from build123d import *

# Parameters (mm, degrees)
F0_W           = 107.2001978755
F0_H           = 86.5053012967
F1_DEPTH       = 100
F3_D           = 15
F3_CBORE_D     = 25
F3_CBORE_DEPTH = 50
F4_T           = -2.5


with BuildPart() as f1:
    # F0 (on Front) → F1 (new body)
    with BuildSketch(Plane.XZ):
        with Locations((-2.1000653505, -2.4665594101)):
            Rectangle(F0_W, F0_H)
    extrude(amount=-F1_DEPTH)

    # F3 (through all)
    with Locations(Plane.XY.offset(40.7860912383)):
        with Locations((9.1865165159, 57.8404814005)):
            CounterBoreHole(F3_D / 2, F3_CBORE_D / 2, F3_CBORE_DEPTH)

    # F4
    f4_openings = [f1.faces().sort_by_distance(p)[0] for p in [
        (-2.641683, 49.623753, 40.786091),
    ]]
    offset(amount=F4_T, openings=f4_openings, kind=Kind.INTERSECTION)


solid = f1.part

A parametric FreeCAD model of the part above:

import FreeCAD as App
import Part
import Sketcher

V = App.Vector


def faces_at(feature, points):
    """Names of the faces that lie closest to the given points."""
    faces = feature.Shape.Faces
    near = lambda p: min(range(len(faces)), key=lambda i: faces[i].distToShape(Part.Vertex(*p))[0])
    return sorted({f"Face{near(p) + 1}" for p in points})


def add_polygon(sketch, points):
    """Adds a closed chain of lines whose ends are joined by coincident constraints."""
    first, n = sketch.GeometryCount, len(points)
    for a, b in zip(points, points[1:] + points[:1]):
        sketch.addGeometry(Part.LineSegment(App.Vector(*a, 0), App.Vector(*b, 0)), False)
    for i in range(n):
        sketch.addConstraint(Sketcher.Constraint("Coincident", first + i, 2, first + (i + 1) % n, 1))

doc = App.newDocument("Part")
body = doc.addObject("PartDesign::Body", "Body")

# Sketch on XZ plane
sketch1 = body.newObject("Sketcher::SketchObject", "Sketch")
sketch1.AttachmentSupport = (doc.getObject("XZ_Plane"), [""])
sketch1.MapMode = "FlatFace"
add_polygon(sketch1, [(-56, 41), (-56, -46), (52, -46), (52, 41)])  # lines 0-3
sketch1.addConstraint([
    Sketcher.Constraint("Vertical", 0),
    Sketcher.Constraint("Horizontal", 1),
    Sketcher.Constraint("Vertical", 2),
    Sketcher.Constraint("Horizontal", 3),
    Sketcher.Constraint("DistanceY", 0, 2, 0, 1, 86.505301),
    Sketcher.Constraint("DistanceX", 1, 1, 1, 2, 107.200198),
    Sketcher.Constraint("DistanceY", 0, 2, -1, 1, 45.71921),
    Sketcher.Constraint("DistanceX", 0, 2, -1, 1, 55.700164),
])
pad1 = body.newObject("PartDesign::Pad", "Pad")
pad1.Profile = sketch1
pad1.Length = 100
pad1.Reversed = True

# Sketch on XY plane
sketch2 = body.newObject("Sketcher::SketchObject", "Sketch001")
sketch2.AttachmentSupport = (doc.getObject("XY_Plane"), [""])
sketch2.MapMode = "FlatFace"
sketch2.AttachmentOffset = App.Placement(V(0, 0, 40.786091), App.Rotation())
sketch2.addGeometry(Part.Circle(V(9, 58, 0), V(0, 0, 1), 8), False)
sketch2.addConstraint([
    Sketcher.Constraint("Diameter", 0, 15.0),
    Sketcher.Constraint("DistanceY", -1, 1, 0, 3, 57.840481),
    Sketcher.Constraint("DistanceX", -1, 1, 0, 3, 9.186517),
])
doc.recompute()
hole = body.newObject("PartDesign::Hole", "Hole")
hole.Profile = sketch2
hole.ThreadType = "None"
hole.Diameter = 15
hole.DepthType = "ThroughAll"
hole.HoleCutType = "Counterbore"
hole.HoleCutDiameter = 25
hole.HoleCutDepth = 50
doc.recompute()

thickness = body.newObject("PartDesign::Thickness", "Thickness")
thickness.Base = (hole, faces_at(hole, [(-2.1, 50, 40.786)]))
thickness.Value = 2.5
thickness.Reversed = True
thickness.Join = "Intersection"

doc.recompute()
